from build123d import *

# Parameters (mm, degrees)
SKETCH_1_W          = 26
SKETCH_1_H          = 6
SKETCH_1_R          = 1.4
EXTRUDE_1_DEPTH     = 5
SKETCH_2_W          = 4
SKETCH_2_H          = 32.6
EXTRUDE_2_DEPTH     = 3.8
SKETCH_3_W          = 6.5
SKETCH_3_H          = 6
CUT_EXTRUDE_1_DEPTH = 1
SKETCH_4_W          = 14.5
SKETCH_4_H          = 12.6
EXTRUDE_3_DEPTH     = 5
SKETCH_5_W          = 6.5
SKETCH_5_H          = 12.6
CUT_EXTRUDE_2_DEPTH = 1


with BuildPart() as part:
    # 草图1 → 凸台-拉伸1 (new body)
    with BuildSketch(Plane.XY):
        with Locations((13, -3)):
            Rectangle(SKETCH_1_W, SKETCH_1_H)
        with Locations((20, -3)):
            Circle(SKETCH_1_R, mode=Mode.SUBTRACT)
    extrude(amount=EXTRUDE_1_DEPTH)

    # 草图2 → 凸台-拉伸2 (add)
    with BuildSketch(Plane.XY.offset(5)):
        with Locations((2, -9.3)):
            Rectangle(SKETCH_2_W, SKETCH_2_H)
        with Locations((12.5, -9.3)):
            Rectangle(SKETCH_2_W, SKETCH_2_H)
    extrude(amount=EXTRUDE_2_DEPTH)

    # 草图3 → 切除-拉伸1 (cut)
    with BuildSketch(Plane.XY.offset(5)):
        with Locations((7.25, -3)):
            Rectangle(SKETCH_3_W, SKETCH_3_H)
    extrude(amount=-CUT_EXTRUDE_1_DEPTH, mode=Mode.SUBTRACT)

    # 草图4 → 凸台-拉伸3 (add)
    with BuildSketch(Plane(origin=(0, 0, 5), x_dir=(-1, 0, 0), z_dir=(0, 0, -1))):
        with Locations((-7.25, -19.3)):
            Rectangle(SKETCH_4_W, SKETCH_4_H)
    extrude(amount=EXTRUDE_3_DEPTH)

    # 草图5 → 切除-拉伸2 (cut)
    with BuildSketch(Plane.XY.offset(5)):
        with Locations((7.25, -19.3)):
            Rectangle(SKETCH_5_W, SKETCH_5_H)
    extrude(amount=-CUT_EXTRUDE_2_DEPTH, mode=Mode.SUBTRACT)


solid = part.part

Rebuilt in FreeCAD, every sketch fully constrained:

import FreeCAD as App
import Part
import Sketcher
from FreeCAD import Vector
Q = App.Units.Quantity

doc = App.newDocument("Part")
body = doc.addObject("PartDesign::Body", "Body")

# Sketch on XY plane
sketch1 = body.newObject("Sketcher::SketchObject", "Sketch")
sketch1.AttachmentSupport = (doc.getObject("XY_Plane"), [""])
sketch1.MapMode = "FlatFace"
sketch1.addGeometry([
    Part.LineSegment(Vector(0, 0, 0), Vector(0, -6, 0)),  # 0
    Part.LineSegment(Vector(0, -6, 0), Vector(26, -6, 0)),  # 1
    Part.LineSegment(Vector(26, -6, 0), Vector(26, 0, 0)),  # 2
    Part.LineSegment(Vector(26, 0, 0), Vector(0, 0, 0)),  # 3
    Part.Circle(Vector(20, -3, 0), Vector(0, 0, 1), 1.4),  # 4
], False)
sketch1.addConstraint([
    Sketcher.Constraint("Coincident", 0, 2, 1, 1),
    Sketcher.Constraint("Coincident", 1, 2, 2, 1),
    Sketcher.Constraint("Coincident", 2, 2, 3, 1),
    Sketcher.Constraint("Coincident", 3, 2, 0, 1),
    Sketcher.Constraint("Vertical", 0),
    Sketcher.Constraint("Horizontal", 1),
    Sketcher.Constraint("Vertical", 2),
    Sketcher.Constraint("Horizontal", 3),
    Sketcher.Constraint("Coincident", 3, 2, -1, 1),
    Sketcher.Constraint("Diameter", 4, Q("2.8 mm")),
    Sketcher.Constraint("DistanceX", 1, 1, 1, 2, Q("26 mm")),
    Sketcher.Constraint("DistanceY", 0, 2, 0, 1, Q("6 mm")),
    Sketcher.Constraint("DistanceX", -1, 1, 4, 3, Q("20 mm")),
    Sketcher.Constraint("DistanceY", 4, 3, -1, 1, Q("3 mm")),
])
pad1 = body.newObject("PartDesign::Pad", "Pad")
pad1.Profile = sketch1
pad1.Length = 5

# Sketch on XY plane
sketch2 = body.newObject("Sketcher::SketchObject", "Sketch001")
sketch2.AttachmentSupport = (doc.getObject("XY_Plane"), [""])
sketch2.MapMode = "FlatFace"
sketch2.AttachmentOffset = App.Placement(Vector(0, 0, 5), App.Rotation())
sketch2.addGeometry([
    Part.LineSegment(Vector(0, 7, 0), Vector(0, -25.6, 0)),  # 0
    Part.LineSegment(Vector(0, -25.6, 0), Vector(4, -25.6, 0)),  # 1
    Part.LineSegment(Vector(4, -25.6, 0), Vector(4, 7, 0)),  # 2
    Part.LineSegment(Vector(4, 7, 0), Vector(0, 7, 0)),  # 3
    Part.LineSegment(Vector(10.5, 7, 0), Vector(10.5, -25.6, 0)),  # 4
    Part.LineSegment(Vector(10.5, -25.6, 0), Vector(14.5, -25.6, 0)),  # 5
    Part.LineSegment(Vector(14.5, -25.6, 0), Vector(14.5, 7, 0)),  # 6
    Part.LineSegment(Vector(14.5, 7, 0), Vector(10.5, 7, 0)),  # 7
], False)
sketch2.addConstraint([
    Sketcher.Constraint("Coincident", 0, 2, 1, 1),
    Sketcher.Constraint("Coincident", 1, 2, 2, 1),
    Sketcher.Constraint("Coincident", 2, 2, 3, 1),
    Sketcher.Constraint("Coincident", 3, 2, 0, 1),
    Sketcher.Constraint("Coincident", 4, 2, 5, 1),
    Sketcher.Constraint("Coincident", 5, 2, 6, 1),
    Sketcher.Constraint("Coincident", 6, 2, 7, 1),
    Sketcher.Constraint("Coincident", 7, 2, 4, 1),
    Sketcher.Constraint("Vertical", 0),
    Sketcher.Constraint("Horizontal", 1),
    Sketcher.Constraint("Vertical", 2),
    Sketcher.Constraint("Horizontal", 3),
    Sketcher.Constraint("Vertical", 4),
    Sketcher.Constraint("Horizontal", 5),
    Sketcher.Constraint("Vertical", 6),
    Sketcher.Constraint("Horizontal", 7),
    Sketcher.Constraint("PointOnObject", 0, 2, -2),
    Sketcher.Constraint("Horizontal", 1, 2, 4, 2),
    Sketcher.Constraint("Horizontal", 3, 2, 6, 2),
    Sketcher.Constraint("Equal", 3, 5),
    Sketcher.Constraint("DistanceX", 1, 1, 1, 2, Q("4 mm")),
    Sketcher.Constraint("DistanceY", 0, 2, 0, 1, Q("32.6 mm")),
    Sketcher.Constraint("DistanceY", -1, 1, 2, 2, Q("7 mm")),
    Sketcher.Constraint("DistanceX", -1, 1, 4, 2, Q("10.5 mm")),
])
pad2 = body.newObject("PartDesign::Pad", "Pad001")
pad2.Profile = sketch2
pad2.Length = 3.8

# Sketch on XY plane
sketch3 = body.newObject("Sketcher::SketchObject", "Sketch002")
sketch3.AttachmentSupport = (doc.getObject("XY_Plane"), [""])
sketch3.MapMode = "FlatFace"
sketch3.AttachmentOffset = App.Placement(Vector(0, 0, 5), App.Rotation())
sketch3.addGeometry([
    Part.LineSegment(Vector(4, 0, 0), Vector(4, -6, 0)),
    Part.LineSegment(Vector(4, -6, 0), Vector(10, -6, 0)),
    Part.LineSegment(Vector(10, -6, 0), Vector(10, 0, 0)),
    Part.LineSegment(Vector(10, 0, 0), Vector(4, 0, 0)),
], False)
sketch3.addConstraint([
    Sketcher.Constraint("Coincident", 0, 2, 1, 1),
    Sketcher.Constraint("Coincident", 1, 2, 2, 1),
    Sketcher.Constraint("Coincident", 2, 2, 3, 1),
    Sketcher.Constraint("Coincident", 3, 2, 0, 1),
    Sketcher.Constraint("Vertical", 0),
    Sketcher.Constraint("Horizontal", 1),
    Sketcher.Constraint("Vertical", 2),
    Sketcher.Constraint("Horizontal", 3),
    Sketcher.Constraint("PointOnObject", 2, 2, -1),
    Sketcher.Constraint("DistanceY", 0, 2, 0, 1, Q("6 mm")),
    Sketcher.Constraint("DistanceX", 1, 1, 1, 2, Q("6.5 mm")),
    Sketcher.Constraint("DistanceX", -1, 1, 0, 2, Q("4 mm")),
])
pocket1 = body.newObject("PartDesign::Pocket", "Pocket")
pocket1.Profile = sketch3
pocket1.Length = 1

# Sketch on XY plane
sketch4 = body.newObject("Sketcher::SketchObject", "Sketch003")
sketch4.AttachmentSupport = (doc.getObject("XY_Plane"), [""])
sketch4.MapMode = "FlatFace"
sketch4.AttachmentOffset = App.Placement(Vector(0, 0, 5), App.Rotation())
sketch4.addGeometry([
    Part.LineSegment(Vector(14, -13, 0), Vector(14, -26, 0)),
    Part.LineSegment(Vector(14, -26, 0), Vector(0, -26, 0)),
    Part.LineSegment(Vector(0, -26, 0), Vector(0, -13, 0)),
    Part.LineSegment(Vector(0, -13, 0), Vector(14, -13, 0)),
], False)
sketch4.addConstraint([
    Sketcher.Constraint("Coincident", 0, 2, 1, 1),
    Sketcher.Constraint("Coincident", 1, 2, 2, 1),
    Sketcher.Constraint("Coincident", 2, 2, 3, 1),
    Sketcher.Constraint("Coincident", 3, 2, 0, 1),
    Sketcher.Constraint("Vertical", 0),
    Sketcher.Constraint("Horizontal", 1),
    Sketcher.Constraint("Vertical", 2),
    Sketcher.Constraint("Horizontal", 3),
    Sketcher.Constraint("PointOnObject", 1, 2, -2),
    Sketcher.Constraint("DistanceX", 1, 2, 1, 1, Q("14.5 mm")),
    Sketcher.Constraint("DistanceY", 0, 2, 0, 1, Q("12.6 mm")),
    Sketcher.Constraint("DistanceY", 2, 2, -1, 1, Q("13 mm")),
])
pad3 = body.newObject("PartDesign::Pad", "Pad002")
pad3.Profile = sketch4
pad3.Length = 5
pad3.Reversed = True

# Sketch on XY plane
sketch5 = body.newObject("Sketcher::SketchObject", "Sketch004")
sketch5.AttachmentSupport = (doc.getObject("XY_Plane"), [""])
sketch5.MapMode = "FlatFace"
sketch5.AttachmentOffset = App.Placement(Vector(0, 0, 5), App.Rotation())
sketch5.addGeometry([
    Part.LineSegment(Vector(4, -13, 0), Vector(4, -26, 0)),
    Part.LineSegment(Vector(4, -26, 0), Vector(10, -26, 0)),
    Part.LineSegment(Vector(10, -26, 0), Vector(10, -13, 0)),
    Part.LineSegment(Vector(10, -13, 0), Vector(4, -13, 0)),
], False)
sketch5.addConstraint([
    Sketcher.Constraint("Coincident", 0, 2, 1, 1),
    Sketcher.Constraint("Coincident", 1, 2, 2, 1),
    Sketcher.Constraint("Coincident", 2, 2, 3, 1),
    Sketcher.Constraint("Coincident", 3, 2, 0, 1),
    Sketcher.Constraint("Vertical", 0),
    Sketcher.Constraint("Horizontal", 1),
    Sketcher.Constraint("Vertical", 2),
    Sketcher.Constraint("Horizontal", 3),
    Sketcher.Constraint("DistanceX", 1, 1, 1, 2, Q("6.5 mm")),
    Sketcher.Constraint("DistanceY", 0, 2, 0, 1, Q("12.6 mm")),
    Sketcher.Constraint("DistanceX", -1, 1, 0, 2, Q("4 mm")),
    Sketcher.Constraint("DistanceY", 2, 2, -1, 1, Q("13 mm")),
])
pocket2 = body.newObject("PartDesign::Pocket", "Pocket001")
pocket2.Profile = sketch5
pocket2.Length = 1

doc.recompute()
